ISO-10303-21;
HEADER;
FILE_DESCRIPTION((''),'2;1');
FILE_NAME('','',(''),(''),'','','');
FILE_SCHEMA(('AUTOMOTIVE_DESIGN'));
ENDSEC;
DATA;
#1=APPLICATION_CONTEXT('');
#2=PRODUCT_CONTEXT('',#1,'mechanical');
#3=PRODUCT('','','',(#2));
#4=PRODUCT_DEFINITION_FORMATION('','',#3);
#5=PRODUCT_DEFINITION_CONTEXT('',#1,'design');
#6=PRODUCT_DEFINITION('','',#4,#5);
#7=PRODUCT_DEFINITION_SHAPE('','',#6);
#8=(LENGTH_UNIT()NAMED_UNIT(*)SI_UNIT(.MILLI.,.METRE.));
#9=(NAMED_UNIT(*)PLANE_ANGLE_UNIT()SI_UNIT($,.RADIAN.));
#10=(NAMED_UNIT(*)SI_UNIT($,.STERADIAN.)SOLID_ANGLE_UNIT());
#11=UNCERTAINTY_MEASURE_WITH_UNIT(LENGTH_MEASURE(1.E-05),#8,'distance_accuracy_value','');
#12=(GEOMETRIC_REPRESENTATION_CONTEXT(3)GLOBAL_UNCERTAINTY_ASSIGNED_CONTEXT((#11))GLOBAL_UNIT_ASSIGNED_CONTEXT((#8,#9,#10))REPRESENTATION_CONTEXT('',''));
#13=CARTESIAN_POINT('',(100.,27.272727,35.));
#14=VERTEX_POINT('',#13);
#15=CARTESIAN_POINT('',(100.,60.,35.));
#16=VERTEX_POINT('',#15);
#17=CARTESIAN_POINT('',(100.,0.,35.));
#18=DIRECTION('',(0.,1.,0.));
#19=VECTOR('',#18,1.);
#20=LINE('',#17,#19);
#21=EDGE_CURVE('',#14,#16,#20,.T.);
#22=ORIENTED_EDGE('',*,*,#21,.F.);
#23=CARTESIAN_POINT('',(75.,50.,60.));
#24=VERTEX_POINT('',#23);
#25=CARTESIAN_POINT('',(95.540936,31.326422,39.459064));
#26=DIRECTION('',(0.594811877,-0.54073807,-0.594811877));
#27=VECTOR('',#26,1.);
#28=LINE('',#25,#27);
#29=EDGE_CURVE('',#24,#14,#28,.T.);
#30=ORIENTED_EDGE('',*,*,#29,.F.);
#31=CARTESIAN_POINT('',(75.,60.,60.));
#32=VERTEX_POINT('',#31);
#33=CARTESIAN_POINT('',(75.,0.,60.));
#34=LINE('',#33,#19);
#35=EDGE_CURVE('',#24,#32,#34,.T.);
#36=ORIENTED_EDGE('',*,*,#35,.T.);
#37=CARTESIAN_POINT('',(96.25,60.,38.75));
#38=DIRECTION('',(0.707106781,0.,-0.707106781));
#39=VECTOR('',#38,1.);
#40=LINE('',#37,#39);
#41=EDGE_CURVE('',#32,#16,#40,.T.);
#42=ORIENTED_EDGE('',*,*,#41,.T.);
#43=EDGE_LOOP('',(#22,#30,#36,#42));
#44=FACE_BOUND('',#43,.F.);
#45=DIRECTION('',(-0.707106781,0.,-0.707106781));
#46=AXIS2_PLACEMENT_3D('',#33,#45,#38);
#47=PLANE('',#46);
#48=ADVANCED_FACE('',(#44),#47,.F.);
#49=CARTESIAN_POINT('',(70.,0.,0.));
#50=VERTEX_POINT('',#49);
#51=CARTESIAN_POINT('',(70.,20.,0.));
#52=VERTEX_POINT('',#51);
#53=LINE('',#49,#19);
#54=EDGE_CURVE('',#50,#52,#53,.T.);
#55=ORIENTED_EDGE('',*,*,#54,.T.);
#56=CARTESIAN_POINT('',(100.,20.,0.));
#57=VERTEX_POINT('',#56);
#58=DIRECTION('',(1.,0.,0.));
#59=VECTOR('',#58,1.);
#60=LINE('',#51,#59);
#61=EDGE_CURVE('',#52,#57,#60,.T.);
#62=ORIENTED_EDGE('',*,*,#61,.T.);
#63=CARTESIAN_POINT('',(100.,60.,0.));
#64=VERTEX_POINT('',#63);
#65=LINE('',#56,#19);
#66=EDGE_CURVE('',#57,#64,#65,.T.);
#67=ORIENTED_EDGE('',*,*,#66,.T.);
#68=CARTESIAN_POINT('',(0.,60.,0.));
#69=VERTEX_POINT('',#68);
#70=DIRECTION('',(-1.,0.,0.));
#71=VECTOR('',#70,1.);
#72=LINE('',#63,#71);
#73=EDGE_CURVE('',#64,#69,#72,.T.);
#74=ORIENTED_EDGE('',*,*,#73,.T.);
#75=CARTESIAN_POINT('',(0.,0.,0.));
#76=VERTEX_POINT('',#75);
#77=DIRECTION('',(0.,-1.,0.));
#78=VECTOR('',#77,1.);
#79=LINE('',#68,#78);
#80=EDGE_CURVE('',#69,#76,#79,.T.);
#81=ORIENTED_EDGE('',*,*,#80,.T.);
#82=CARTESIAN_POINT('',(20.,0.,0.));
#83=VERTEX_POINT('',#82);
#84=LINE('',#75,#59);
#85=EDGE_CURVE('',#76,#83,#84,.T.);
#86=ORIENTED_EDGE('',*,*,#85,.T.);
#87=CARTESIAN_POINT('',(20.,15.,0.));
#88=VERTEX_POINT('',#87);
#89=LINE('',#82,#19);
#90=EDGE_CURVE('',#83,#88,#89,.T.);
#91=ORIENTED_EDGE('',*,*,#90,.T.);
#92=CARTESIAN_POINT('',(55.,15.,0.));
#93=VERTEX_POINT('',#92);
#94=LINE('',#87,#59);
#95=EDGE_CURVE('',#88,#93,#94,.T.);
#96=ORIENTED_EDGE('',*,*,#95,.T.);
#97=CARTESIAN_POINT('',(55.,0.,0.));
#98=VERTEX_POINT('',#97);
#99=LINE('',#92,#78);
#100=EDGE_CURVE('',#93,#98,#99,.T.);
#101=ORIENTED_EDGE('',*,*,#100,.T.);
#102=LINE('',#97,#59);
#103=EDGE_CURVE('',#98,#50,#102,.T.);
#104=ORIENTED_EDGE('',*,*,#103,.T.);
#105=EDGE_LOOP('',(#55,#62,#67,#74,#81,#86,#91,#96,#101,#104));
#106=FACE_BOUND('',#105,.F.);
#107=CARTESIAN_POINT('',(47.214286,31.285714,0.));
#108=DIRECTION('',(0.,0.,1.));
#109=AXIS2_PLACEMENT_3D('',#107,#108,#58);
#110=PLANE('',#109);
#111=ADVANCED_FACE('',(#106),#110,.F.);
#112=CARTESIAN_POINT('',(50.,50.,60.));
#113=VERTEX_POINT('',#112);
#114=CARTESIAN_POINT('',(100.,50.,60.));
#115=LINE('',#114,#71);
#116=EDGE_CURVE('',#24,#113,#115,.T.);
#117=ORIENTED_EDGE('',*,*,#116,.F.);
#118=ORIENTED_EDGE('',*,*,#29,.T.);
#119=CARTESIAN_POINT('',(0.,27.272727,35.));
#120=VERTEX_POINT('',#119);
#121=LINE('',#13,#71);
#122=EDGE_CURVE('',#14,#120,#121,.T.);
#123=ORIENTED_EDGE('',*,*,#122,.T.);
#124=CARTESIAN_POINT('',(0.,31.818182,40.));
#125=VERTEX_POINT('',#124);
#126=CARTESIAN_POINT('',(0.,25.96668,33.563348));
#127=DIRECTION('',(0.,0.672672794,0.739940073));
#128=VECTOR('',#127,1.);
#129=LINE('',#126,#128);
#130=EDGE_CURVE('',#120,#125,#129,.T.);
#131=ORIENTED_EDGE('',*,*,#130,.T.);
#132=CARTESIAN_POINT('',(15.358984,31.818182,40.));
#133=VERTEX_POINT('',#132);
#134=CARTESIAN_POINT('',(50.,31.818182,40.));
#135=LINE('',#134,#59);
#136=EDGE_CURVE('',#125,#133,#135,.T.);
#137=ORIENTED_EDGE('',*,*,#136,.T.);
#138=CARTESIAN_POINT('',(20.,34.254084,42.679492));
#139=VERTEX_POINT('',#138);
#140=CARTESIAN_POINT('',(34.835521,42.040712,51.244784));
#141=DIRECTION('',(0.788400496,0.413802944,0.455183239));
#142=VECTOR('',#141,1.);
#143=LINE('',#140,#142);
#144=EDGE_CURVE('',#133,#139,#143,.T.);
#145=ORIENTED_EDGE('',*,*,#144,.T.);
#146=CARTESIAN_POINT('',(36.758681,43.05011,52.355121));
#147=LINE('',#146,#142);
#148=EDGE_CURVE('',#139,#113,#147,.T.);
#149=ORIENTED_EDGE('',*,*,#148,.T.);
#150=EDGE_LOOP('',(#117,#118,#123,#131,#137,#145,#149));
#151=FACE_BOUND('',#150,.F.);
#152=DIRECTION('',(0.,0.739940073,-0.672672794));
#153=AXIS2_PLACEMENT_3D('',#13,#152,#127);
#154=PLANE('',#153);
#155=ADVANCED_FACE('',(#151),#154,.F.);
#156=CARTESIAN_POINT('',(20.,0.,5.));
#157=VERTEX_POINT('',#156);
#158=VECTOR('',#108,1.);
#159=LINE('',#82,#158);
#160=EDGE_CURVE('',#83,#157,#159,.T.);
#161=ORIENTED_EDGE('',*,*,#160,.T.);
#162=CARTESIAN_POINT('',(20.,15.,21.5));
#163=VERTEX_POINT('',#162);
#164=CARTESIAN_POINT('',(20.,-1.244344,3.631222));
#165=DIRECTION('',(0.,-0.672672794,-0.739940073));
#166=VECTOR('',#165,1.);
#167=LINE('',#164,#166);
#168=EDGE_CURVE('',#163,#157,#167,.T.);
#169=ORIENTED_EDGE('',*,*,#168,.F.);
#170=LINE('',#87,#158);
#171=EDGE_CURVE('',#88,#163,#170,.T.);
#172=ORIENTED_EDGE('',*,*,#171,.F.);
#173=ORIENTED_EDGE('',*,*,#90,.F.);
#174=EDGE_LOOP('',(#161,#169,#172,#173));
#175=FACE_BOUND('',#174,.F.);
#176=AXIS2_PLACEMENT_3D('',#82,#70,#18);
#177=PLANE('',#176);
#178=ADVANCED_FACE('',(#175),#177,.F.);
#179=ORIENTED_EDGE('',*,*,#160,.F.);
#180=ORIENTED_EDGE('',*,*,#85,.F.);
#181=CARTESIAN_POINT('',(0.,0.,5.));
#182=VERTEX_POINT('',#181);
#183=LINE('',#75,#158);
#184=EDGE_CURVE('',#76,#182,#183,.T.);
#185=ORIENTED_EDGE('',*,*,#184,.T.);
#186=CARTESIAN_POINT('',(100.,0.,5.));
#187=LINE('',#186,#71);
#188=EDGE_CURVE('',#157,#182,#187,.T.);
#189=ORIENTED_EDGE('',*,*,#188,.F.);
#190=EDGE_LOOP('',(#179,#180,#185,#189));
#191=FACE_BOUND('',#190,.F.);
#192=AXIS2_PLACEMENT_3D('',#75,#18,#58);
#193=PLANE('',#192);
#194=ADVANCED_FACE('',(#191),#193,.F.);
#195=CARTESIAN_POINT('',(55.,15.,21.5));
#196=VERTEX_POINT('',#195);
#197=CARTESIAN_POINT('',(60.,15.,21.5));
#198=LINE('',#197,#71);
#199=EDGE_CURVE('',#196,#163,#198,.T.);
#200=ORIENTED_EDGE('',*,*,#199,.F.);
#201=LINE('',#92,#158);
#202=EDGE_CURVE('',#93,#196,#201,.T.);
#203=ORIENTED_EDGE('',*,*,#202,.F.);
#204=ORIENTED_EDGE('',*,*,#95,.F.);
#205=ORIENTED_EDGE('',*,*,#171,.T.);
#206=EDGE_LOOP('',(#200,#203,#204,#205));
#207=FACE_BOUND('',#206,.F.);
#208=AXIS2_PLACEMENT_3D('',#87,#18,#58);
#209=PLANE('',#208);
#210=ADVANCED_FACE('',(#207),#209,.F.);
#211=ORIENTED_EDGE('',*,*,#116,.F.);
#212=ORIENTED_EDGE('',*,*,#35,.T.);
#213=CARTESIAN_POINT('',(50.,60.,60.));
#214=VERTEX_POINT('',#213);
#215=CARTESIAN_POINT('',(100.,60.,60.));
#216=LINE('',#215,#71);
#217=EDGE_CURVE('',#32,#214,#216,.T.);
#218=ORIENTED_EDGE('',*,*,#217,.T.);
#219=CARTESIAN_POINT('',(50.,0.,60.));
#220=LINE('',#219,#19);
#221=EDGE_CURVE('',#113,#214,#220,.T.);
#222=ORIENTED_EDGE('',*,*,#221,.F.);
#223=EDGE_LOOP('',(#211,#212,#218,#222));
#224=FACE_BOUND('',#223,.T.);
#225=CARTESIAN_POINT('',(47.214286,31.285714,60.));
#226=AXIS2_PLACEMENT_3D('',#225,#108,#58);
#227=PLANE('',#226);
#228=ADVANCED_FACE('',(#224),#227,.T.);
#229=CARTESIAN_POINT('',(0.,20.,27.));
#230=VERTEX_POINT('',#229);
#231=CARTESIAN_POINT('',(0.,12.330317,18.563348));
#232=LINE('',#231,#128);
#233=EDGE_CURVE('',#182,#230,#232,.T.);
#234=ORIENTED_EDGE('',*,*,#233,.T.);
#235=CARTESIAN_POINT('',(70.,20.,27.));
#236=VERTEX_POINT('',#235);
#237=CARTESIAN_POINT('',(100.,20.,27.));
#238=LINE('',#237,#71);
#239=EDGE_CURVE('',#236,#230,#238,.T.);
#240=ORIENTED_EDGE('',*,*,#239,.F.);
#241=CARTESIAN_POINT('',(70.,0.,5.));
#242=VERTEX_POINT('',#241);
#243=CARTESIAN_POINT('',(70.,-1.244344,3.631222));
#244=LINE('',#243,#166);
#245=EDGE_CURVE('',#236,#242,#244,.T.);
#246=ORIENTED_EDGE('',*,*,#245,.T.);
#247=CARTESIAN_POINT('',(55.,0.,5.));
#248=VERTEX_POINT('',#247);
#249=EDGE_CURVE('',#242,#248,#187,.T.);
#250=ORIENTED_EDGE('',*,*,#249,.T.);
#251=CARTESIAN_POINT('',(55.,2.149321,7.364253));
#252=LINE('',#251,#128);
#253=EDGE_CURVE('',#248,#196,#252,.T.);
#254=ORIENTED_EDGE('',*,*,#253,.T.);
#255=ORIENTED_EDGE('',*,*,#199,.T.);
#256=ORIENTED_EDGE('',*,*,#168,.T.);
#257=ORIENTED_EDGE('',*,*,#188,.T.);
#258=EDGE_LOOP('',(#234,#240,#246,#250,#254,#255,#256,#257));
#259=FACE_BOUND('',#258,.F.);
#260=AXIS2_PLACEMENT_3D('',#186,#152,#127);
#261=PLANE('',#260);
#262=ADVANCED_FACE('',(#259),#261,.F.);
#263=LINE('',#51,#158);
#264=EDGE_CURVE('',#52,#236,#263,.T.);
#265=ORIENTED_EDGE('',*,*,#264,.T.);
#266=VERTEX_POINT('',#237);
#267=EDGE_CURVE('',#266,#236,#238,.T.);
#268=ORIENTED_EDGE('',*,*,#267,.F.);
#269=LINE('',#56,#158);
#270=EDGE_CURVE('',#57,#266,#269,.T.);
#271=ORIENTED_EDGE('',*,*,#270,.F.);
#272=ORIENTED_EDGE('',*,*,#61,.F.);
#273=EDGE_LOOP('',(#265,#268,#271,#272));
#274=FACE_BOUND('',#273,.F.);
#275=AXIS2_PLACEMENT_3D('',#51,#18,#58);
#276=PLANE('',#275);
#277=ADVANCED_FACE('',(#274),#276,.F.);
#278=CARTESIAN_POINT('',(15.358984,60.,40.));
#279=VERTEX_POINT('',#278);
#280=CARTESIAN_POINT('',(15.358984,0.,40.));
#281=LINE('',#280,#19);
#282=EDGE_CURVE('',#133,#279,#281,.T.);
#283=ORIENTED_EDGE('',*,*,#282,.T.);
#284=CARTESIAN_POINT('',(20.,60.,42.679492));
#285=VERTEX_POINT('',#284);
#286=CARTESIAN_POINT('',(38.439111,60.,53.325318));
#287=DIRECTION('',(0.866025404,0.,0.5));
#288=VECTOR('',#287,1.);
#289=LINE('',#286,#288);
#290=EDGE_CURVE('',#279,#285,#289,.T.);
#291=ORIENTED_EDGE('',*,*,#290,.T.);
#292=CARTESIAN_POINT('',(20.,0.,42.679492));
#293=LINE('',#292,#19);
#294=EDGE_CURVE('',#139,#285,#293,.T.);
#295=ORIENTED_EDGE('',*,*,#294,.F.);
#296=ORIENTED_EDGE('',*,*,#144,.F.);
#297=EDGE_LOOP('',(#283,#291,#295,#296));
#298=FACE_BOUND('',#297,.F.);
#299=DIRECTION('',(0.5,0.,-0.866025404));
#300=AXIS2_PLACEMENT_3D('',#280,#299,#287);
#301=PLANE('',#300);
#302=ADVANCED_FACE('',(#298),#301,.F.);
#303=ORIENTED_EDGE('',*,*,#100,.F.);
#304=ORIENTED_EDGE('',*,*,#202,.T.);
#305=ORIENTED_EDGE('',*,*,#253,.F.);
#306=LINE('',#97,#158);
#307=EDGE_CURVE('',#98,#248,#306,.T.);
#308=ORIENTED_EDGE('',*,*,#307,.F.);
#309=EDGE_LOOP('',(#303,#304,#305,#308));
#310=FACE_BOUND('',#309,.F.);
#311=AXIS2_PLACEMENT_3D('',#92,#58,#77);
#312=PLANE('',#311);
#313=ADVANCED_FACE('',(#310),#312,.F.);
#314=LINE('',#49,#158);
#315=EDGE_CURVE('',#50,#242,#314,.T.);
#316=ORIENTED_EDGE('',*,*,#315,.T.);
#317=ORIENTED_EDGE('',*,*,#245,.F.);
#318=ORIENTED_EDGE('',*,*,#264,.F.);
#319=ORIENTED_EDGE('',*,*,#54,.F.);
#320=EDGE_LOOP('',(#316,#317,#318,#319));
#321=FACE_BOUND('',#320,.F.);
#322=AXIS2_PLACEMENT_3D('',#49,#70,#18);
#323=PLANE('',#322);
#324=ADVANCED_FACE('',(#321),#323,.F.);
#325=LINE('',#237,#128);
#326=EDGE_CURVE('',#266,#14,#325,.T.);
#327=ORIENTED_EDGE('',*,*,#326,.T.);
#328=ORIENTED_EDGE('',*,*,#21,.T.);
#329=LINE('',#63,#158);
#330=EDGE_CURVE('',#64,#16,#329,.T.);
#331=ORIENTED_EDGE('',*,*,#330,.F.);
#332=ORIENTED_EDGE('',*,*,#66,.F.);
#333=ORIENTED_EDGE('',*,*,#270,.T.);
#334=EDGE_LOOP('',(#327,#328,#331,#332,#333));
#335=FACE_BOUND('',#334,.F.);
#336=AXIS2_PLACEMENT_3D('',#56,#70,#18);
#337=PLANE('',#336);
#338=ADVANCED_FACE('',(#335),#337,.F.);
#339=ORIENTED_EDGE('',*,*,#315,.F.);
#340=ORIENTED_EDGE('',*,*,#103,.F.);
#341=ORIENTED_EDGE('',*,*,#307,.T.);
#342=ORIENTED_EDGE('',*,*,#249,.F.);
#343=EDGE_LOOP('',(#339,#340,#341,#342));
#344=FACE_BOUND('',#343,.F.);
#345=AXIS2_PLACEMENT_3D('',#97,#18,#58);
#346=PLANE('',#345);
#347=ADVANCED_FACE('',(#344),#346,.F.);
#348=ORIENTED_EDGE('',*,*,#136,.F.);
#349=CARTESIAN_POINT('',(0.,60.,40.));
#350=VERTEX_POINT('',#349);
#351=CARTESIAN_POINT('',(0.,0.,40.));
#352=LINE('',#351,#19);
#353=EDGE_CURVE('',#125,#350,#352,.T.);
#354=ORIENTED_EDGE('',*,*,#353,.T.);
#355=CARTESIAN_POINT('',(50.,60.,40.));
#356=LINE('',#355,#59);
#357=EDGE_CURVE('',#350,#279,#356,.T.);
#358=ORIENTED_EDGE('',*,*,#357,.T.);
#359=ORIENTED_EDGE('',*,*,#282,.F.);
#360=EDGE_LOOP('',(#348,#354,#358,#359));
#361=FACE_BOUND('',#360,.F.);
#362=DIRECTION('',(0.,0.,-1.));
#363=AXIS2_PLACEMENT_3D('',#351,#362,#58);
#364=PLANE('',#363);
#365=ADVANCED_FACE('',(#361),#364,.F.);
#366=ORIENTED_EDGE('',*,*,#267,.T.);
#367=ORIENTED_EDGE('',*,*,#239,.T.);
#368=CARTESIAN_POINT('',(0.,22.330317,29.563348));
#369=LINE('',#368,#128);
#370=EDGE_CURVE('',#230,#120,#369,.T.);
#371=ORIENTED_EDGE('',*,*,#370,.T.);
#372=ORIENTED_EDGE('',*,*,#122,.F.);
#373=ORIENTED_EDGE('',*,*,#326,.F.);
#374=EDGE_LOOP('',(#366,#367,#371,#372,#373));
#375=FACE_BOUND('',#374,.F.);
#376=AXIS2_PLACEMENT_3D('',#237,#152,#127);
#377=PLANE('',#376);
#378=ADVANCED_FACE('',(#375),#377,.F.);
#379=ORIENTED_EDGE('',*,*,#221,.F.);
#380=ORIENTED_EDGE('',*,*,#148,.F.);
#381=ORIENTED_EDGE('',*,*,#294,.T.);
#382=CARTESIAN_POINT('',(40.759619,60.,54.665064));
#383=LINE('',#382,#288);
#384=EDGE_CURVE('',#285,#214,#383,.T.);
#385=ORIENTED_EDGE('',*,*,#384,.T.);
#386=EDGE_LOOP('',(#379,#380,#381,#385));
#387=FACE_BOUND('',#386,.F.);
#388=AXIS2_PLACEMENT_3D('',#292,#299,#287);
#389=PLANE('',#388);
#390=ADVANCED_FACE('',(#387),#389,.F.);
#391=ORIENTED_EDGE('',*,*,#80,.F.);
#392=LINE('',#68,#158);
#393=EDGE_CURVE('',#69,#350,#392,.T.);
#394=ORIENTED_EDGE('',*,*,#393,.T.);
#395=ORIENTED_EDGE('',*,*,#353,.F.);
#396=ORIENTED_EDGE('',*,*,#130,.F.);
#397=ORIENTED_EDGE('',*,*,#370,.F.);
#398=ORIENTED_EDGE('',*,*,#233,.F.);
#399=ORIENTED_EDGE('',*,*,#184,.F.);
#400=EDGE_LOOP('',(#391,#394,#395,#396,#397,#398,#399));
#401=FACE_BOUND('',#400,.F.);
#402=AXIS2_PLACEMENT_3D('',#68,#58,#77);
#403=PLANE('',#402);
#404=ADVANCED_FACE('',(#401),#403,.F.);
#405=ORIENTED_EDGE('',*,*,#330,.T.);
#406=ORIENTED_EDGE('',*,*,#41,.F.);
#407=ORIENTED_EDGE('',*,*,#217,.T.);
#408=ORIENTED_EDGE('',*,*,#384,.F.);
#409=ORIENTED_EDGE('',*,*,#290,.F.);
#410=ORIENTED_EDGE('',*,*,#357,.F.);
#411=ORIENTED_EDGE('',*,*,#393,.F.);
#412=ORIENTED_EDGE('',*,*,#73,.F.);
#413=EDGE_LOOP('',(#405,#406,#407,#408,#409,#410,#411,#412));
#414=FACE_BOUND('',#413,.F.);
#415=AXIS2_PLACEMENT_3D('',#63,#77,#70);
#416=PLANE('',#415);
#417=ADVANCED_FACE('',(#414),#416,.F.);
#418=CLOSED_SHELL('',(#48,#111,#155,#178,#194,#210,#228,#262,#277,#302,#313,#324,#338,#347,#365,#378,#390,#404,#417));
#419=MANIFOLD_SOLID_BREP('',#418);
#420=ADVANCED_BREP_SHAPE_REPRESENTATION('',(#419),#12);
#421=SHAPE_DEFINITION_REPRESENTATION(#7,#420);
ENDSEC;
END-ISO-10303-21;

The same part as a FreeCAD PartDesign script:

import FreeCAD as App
import Part
import Sketcher

V = App.Vector
Q = App.Units.Quantity


def add_polygon(sketch, points):
    """Adds a closed chain of lines whose ends are joined by coincident constraints."""
    first, n = sketch.GeometryCount, len(points)
    for a, b in zip(points, points[1:] + points[:1]):
        sketch.addGeometry(Part.LineSegment(App.Vector(*a, 0), App.Vector(*b, 0)), False)
    for i in range(n):
        sketch.addConstraint(Sketcher.Constraint("Coincident", first + i, 2, first + (i + 1) % n, 1))

doc = App.newDocument("Part")
params = doc.addObject("Spreadsheet::Sheet", "Params")
for row, (alias, value) in enumerate([
    ("sketch1_width", "20 mm"),
    ("sketch1_width2", "35 mm"),
    ("sketch1_width3", "15 mm"),
    ("sketch1_width4", "30 mm"),
    ("sketch1_height", "60 mm"),
    ("pad1_length", "60 mm"),
    ("sketch2_width", "50 mm"),
    ("sketch2_width2", "25 mm"),
    ("sketch2_height", "20 mm"),
    ("sketch3_width", "50 mm"),
    ("sketch3_height", "55 mm"),
], start=1):
    params.set(f"A{row}", alias)
    params.set(f"B{row}", "=" + value)
    params.setAlias(f"B{row}", alias)

body = doc.addObject("PartDesign::Body", "Body")

sketch1 = body.newObject("Sketcher::SketchObject", "Sketch")
sketch1.AttachmentSupport = (doc.getObject("XY_Plane"), [""])
sketch1.MapMode = "FlatFace"
add_polygon(sketch1, [(0, 60), (0, 0), (20, 0), (20, 15), (55, 15), (55, 0), (70, 0), (70, 20), (100, 20), (100, 60)])
sketch1.addConstraint([
    Sketcher.Constraint("Vertical", 0),
    Sketcher.Constraint("Horizontal", 1),
    Sketcher.Constraint("Vertical", 2),
    Sketcher.Constraint("Horizontal", 3),
    Sketcher.Constraint("Vertical", 4),
    Sketcher.Constraint("Horizontal", 5),
    Sketcher.Constraint("Vertical", 6),
    Sketcher.Constraint("Horizontal", 7),
    Sketcher.Constraint("Vertical", 8),
    Sketcher.Constraint("Horizontal", 9),
    Sketcher.Constraint("Coincident", 0, 2, -1, 1),
    Sketcher.Constraint("PointOnObject", 4, 2, -1),
    Sketcher.Constraint("Equal", 5, 2),
    Sketcher.Constraint("Equal", 1, 6),
    Sketcher.Constraint("DistanceX", 1, 1, 1, 2, 20.0),
    Sketcher.Constraint("DistanceX", 3, 1, 3, 2, 35.0),
    Sketcher.Constraint("DistanceX", 5, 1, 5, 2, 15.0),
    Sketcher.Constraint("DistanceX", 7, 1, 7, 2, 30.0),
    Sketcher.Constraint("DistanceY", 0, 2, 0, 1, 60.0),
])
sketch1.setExpression("Constraints[24]", "Params.sketch1_width")
sketch1.setExpression("Constraints[25]", "Params.sketch1_width2")
sketch1.setExpression("Constraints[26]", "Params.sketch1_width3")
sketch1.setExpression("Constraints[27]", "Params.sketch1_width4")
sketch1.setExpression("Constraints[28]", "Params.sketch1_height")
pad1 = body.newObject("PartDesign::Pad", "Pad")
pad1.Profile = sketch1
pad1.setExpression("Length", "Params.pad1_length")

sketch2 = body.newObject("Sketcher::SketchObject", "Sketch001")
sketch2.AttachmentSupport = (doc.getObject("XZ_Plane"), [""])
sketch2.MapMode = "FlatFace"
add_polygon(sketch2, [(0, 60), (0, 40), (15, 40), (20, 43), (50, 60)])
add_polygon(sketch2, [(100, 60), (75, 60), (100, 35)])
sketch2.addConstraint([
    Sketcher.Constraint("Vertical", 0),
    Sketcher.Constraint("Horizontal", 1),
    Sketcher.Constraint("Horizontal", 4),
    Sketcher.Constraint("Horizontal", 5),
    Sketcher.Constraint("Vertical", 7),
    Sketcher.Constraint("PointOnObject", 0, 2, -2),
    Sketcher.Constraint("Parallel", 2, 3),
    Sketcher.Constraint("Horizontal", 4, 2, 5, 2),
    Sketcher.Constraint("Equal", 5, 7),
    Sketcher.Constraint("DistanceX", 4, 2, 4, 1, 50.0),
    Sketcher.Constraint("DistanceX", 5, 2, 5, 1, 25.0),
    Sketcher.Constraint("DistanceY", 0, 2, 0, 1, 20.0),
    Sketcher.Constraint("Angle", 2, Q("30 deg")),
    Sketcher.Constraint("DistanceY", -1, 1, 0, 2, 40.0),
    Sketcher.Constraint("DistanceX", -1, 1, 2, 2, 20.0),
    Sketcher.Constraint("DistanceX", -1, 1, 5, 2, 75.0),
])
sketch2.setExpression("Constraints[17]", "Params.sketch2_width")
sketch2.setExpression("Constraints[18]", "Params.sketch2_width2")
sketch2.setExpression("Constraints[19]", "Params.sketch2_height")
pocket1 = body.newObject("PartDesign::Pocket", "Pocket")
pocket1.Profile = sketch2
pocket1.Type = "ThroughAll"

sketch3 = body.newObject("Sketcher::SketchObject", "Sketch002")
sketch3.AttachmentSupport = (doc.getObject("YZ_Plane"), [""])
sketch3.MapMode = "FlatFace"
sketch3.AttachmentOffset = App.Placement(V(0, 0, 100), App.Rotation())
add_polygon(sketch3, [(27, 35), (50, 60), (0, 60), (0, 5), (20, 27)])
sketch3.addConstraint([
    Sketcher.Constraint("Horizontal", 1),
    Sketcher.Constraint("Vertical", 2),
    Sketcher.Constraint("PointOnObject", 1, 2, -2),
    Sketcher.Constraint("Parallel", 0, 3),
    Sketcher.Constraint("Parallel", 3, 4),
    Sketcher.Constraint("DistanceX", 1, 2, 1, 1, 50.0),
    Sketcher.Constraint("DistanceY", 2, 2, 2, 1, 55.0),
    Sketcher.Constraint("DistanceY", -1, 1, 0, 2, 60.0),
    Sketcher.Constraint("DistanceX", -1, 1, 3, 2, 20.0),
    Sketcher.Constraint("DistanceY", -1, 1, 4, 2, 35.0),
])
sketch3.setExpression("Constraints[10]", "Params.sketch3_width")
sketch3.setExpression("Constraints[11]", "Params.sketch3_height")
pocket2 = body.newObject("PartDesign::Pocket", "Pocket001")
pocket2.Profile = sketch3
pocket2.Type = "ThroughAll"

doc.recompute()
